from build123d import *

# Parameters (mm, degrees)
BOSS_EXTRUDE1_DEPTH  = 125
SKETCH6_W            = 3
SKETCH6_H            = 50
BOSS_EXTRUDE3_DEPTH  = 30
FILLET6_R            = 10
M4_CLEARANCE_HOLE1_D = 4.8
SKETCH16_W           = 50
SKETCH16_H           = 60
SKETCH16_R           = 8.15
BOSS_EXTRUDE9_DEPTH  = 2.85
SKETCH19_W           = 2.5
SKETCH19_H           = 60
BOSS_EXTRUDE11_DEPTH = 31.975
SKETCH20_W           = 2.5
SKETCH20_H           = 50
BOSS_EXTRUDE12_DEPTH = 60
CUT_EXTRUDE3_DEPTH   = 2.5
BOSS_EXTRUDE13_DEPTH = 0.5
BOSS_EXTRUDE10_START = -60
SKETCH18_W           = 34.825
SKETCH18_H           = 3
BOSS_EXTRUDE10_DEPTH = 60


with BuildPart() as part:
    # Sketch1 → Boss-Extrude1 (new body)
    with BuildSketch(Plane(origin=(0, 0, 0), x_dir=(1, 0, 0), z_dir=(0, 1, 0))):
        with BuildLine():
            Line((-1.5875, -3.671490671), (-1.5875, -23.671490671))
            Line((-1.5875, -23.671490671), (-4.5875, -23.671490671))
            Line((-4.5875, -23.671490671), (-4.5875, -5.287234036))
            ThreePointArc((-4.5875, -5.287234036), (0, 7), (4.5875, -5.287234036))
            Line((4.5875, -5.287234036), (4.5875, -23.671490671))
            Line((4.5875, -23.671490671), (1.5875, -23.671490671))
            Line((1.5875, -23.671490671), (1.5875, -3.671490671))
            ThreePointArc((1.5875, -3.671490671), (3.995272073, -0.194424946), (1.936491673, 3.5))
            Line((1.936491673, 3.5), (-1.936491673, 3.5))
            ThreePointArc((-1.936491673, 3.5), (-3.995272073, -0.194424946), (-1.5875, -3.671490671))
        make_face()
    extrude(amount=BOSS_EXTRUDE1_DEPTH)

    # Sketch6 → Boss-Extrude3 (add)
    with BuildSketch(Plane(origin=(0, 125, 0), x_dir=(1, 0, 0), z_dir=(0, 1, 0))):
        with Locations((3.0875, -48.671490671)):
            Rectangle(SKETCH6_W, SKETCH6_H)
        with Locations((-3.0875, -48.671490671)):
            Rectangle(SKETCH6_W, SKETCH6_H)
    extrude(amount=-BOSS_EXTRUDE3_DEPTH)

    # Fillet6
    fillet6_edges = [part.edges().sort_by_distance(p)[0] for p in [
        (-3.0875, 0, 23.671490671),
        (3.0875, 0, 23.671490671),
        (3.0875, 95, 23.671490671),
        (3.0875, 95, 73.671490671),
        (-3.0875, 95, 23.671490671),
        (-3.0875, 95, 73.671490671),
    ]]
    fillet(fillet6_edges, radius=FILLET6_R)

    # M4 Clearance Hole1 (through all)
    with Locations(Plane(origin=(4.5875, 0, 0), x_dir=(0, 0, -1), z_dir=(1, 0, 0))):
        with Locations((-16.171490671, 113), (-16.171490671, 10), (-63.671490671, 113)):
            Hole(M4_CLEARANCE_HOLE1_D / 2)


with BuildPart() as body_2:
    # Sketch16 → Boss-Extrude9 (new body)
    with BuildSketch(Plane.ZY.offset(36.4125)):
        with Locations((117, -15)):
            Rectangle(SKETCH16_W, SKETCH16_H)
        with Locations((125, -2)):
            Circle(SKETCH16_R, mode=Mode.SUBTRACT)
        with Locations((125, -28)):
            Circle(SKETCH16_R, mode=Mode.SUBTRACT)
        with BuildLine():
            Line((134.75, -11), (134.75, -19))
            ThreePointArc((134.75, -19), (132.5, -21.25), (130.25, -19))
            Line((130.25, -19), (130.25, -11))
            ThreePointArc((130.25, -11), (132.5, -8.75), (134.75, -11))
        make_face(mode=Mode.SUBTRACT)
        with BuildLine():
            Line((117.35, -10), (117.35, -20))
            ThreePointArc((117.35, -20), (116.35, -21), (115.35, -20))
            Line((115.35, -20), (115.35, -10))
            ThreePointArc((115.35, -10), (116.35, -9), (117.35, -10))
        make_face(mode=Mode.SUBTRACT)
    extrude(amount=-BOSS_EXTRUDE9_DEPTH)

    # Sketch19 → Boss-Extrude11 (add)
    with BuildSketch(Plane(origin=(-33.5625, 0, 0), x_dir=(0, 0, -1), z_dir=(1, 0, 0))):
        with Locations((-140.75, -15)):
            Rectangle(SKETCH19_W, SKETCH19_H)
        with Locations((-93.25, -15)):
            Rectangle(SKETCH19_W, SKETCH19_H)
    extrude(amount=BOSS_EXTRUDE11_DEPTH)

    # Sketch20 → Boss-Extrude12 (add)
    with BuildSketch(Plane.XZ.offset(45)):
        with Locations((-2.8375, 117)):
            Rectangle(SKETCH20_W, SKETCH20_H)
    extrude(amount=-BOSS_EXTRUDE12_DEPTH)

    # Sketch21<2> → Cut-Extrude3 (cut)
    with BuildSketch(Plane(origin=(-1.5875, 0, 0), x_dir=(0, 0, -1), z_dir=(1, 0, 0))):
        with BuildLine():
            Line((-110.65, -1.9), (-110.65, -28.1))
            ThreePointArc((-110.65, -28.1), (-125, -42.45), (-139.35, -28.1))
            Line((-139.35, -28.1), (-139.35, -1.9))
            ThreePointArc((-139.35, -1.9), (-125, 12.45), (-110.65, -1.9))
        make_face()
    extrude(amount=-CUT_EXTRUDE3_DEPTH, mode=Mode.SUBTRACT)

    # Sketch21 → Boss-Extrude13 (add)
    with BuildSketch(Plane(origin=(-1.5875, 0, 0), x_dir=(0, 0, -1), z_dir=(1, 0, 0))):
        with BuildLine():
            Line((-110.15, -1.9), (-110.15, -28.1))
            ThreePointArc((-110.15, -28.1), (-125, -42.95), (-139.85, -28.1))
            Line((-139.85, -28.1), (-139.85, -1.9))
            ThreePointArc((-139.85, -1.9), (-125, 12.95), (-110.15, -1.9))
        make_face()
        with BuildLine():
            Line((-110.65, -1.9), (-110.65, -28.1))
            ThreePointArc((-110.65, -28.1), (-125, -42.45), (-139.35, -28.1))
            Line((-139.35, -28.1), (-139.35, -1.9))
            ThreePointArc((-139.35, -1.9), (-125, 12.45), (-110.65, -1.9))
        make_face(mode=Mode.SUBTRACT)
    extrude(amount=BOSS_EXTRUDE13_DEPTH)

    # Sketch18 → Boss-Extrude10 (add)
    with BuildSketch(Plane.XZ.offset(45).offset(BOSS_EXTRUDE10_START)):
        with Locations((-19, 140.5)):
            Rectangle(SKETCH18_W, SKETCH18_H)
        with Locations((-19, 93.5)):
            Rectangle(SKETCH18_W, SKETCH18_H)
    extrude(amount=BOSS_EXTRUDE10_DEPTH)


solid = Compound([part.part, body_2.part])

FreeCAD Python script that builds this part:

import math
import FreeCAD as App
import Part
import Sketcher

V = App.Vector
Q = App.Units.Quantity


def edges_at(feature, points):
    """Names of the edges that pass closest to the given points."""
    edges = feature.Shape.Edges
    near = lambda p: min(range(len(edges)), key=lambda i: edges[i].distToShape(Part.Vertex(*p))[0])
    return sorted({f"Edge{near(p) + 1}" for p in points})


def add_polygon(sketch, points):
    """Adds a closed chain of lines whose ends are joined by coincident constraints."""
    first, n = sketch.GeometryCount, len(points)
    for a, b in zip(points, points[1:] + points[:1]):
        sketch.addGeometry(Part.LineSegment(App.Vector(*a, 0), App.Vector(*b, 0)), False)
    for i in range(n):
        sketch.addConstraint(Sketcher.Constraint("Coincident", first + i, 2, first + (i + 1) % n, 1))

doc = App.newDocument("Part")
params = doc.addObject("Spreadsheet::Sheet", "Params")
for row, (alias, value) in enumerate([
    ("sketch1_radius", "4 mm"),
    ("sketch1_radius2", "7 mm"),
    ("sketch1_width", "3 mm"),
    ("sketch1_height", "20 mm"),
    ("pad1_length", "125 mm"),
    ("sketch2_width", "3 mm"),
    ("sketch2_height", "50 mm"),
    ("pad2_length", "30 mm"),
    ("fillet_radius", "10 mm"),
    ("sketch3_diameter", "4.8 mm"),
    ("hole_diameter", "4.8 mm"),
    ("sketch4_radius", "1 mm"),
    ("sketch4_diameter", "16.3 mm"),
    ("sketch4_width", "60 mm"),
    ("sketch4_width2", "10 mm"),
    ("sketch4_width3", "8 mm"),
    ("pad3_length", "2.85 mm"),
    ("sketch5_width", "60 mm"),
    ("sketch5_height", "2.5 mm"),
    ("pad4_length", "31.975 mm"),
    ("sketch6_height", "50 mm"),
    ("sketch6_width", "2.5 mm"),
    ("pad5_length", "60 mm"),
    ("sketch7_radius", "14.35 mm"),
    ("sketch7_width", "26.2 mm"),
    ("pocket1_length", "2.5 mm"),
    ("sketch8_radius", "14.85 mm"),
    ("sketch8_radius2", "14.35 mm"),
    ("sketch8_width", "26.2 mm"),
    ("pad6_length", "0.5 mm"),
    ("sketch9_height", "3 mm"),
    ("pad7_length", "60 mm"),
], start=1):
    params.set(f"A{row}", alias)
    params.set(f"B{row}", "=" + value)
    params.setAlias(f"B{row}", alias)

body = doc.addObject("PartDesign::Body", "Body")

# Sketch on XZ plane
sketch1 = doc.addObject("Sketcher::SketchObject", "Sketch")
body.addObject(sketch1)
sketch1.AttachmentSupport = (doc.XZ_Plane, [""])
sketch1.MapMode = "FlatFace"
sketch1.addGeometry([
    Part.LineSegment(V(-1.6, 23.7, 0), V(-1.6, 3.7, 0)),  # 0
    Part.ArcOfCircle(Part.Circle(V(0, 0, 0), V(0, 0, 1), 4), math.radians(113), math.radians(241)),  # 1
    Part.LineSegment(V(-1.9, -3.5, 0), V(1.9, -3.5, 0)),  # 2
    Part.ArcOfCircle(Part.Circle(V(0, 0, 0), V(0, 0, 1), 4), math.radians(-61), math.radians(67)),  # 3
    Part.LineSegment(V(1.6, 3.7, 0), V(1.6, 23.7, 0)),  # 4
    Part.LineSegment(V(1.6, 23.7, 0), V(4.6, 23.7, 0)),  # 5
    Part.LineSegment(V(4.6, 23.7, 0), V(4.6, 5.3, 0)),  # 6
    Part.ArcOfCircle(Part.Circle(V(0, 0, 0), V(0, 0, 1), 7), math.radians(131), math.radians(409)),  # 7
    Part.LineSegment(V(-4.6, 5.3, 0), V(-4.6, 23.7, 0)),  # 8
    Part.LineSegment(V(-4.6, 23.7, 0), V(-1.6, 23.7, 0)),  # 9
], False)
sketch1.addConstraint([
    Sketcher.Constraint("Coincident", 0, 2, 1, 1),
    Sketcher.Constraint("Coincident", 1, 2, 2, 1),
    Sketcher.Constraint("Coincident", 2, 2, 3, 1),
    Sketcher.Constraint("Coincident", 3, 2, 4, 1),
    Sketcher.Constraint("Coincident", 4, 2, 5, 1),
    Sketcher.Constraint("Coincident", 5, 2, 6, 1),
    Sketcher.Constraint("Coincident", 6, 2, 7, 2),
    Sketcher.Constraint("Coincident", 7, 1, 8, 1),
    Sketcher.Constraint("Coincident", 8, 2, 9, 1),
    Sketcher.Constraint("Coincident", 9, 2, 0, 1),
    Sketcher.Constraint("Vertical", 0),
    Sketcher.Constraint("Horizontal", 2),
    Sketcher.Constraint("Vertical", 4),
    Sketcher.Constraint("Horizontal", 5),
    Sketcher.Constraint("Vertical", 6),
    Sketcher.Constraint("Vertical", 8),
    Sketcher.Constraint("Horizontal", 9),
    Sketcher.Constraint("Coincident", 1, 3, -1, 1),
    Sketcher.Constraint("Coincident", 3, 3, -1, 1),
    Sketcher.Constraint("Coincident", 7, 3, -1, 1),
    Sketcher.Constraint("Equal", 1, 3),
    Sketcher.Constraint("Symmetric", 5, 2, 8, 2, -2),
    Sketcher.Constraint("Horizontal", 0, 2, 3, 2),
    Sketcher.Constraint("Radius", 1, Q("4 mm")),
    Sketcher.Constraint("Radius", 7, Q("7 mm")),
    Sketcher.Constraint("DistanceX", 5, 1, 5, 2, Q("3 mm")),
    Sketcher.Constraint("DistanceY", 0, 2, 0, 1, Q("20 mm")),
    Sketcher.Constraint("DistanceY", 1, 2, -1, 1, Q("3.5 mm")),
    Sketcher.Constraint("DistanceX", 0, 2, 3, 2, Q("3.175 mm")),
])
sketch1.setExpression("Constraints[23]", "Params.sketch1_radius")
sketch1.setExpression("Constraints[24]", "Params.sketch1_radius2")
sketch1.setExpression("Constraints[25]", "Params.sketch1_width")
sketch1.setExpression("Constraints[26]", "Params.sketch1_height")
pad1 = doc.addObject("PartDesign::Pad", "Pad")
body.addObject(pad1)
pad1.Profile = sketch1
pad1.setExpression("Length", "Params.pad1_length")
pad1.Reversed = True

# Sketch on XZ plane
sketch2 = doc.addObject("Sketcher::SketchObject", "Sketch001")
body.addObject(sketch2)
sketch2.AttachmentSupport = (doc.XZ_Plane, [""])
sketch2.MapMode = "FlatFace"
sketch2.AttachmentOffset = App.Placement(V(0, 0, -125), App.Rotation())
add_polygon(sketch2, [(1.6, 23.7), (1.6, 73.7), (4.6, 73.7), (4.6, 23.7)])  # lines 0-3
add_polygon(sketch2, [(-4.6, 23.7), (-4.6, 73.7), (-1.6, 73.7), (-1.6, 23.7)])  # lines 4-7
sketch2.addConstraint([
    Sketcher.Constraint("Vertical", 0),
    Sketcher.Constraint("Horizontal", 1),
    Sketcher.Constraint("Vertical", 2),
    Sketcher.Constraint("Horizontal", 3),
    Sketcher.Constraint("Vertical", 4),
    Sketcher.Constraint("Horizontal", 5),
    Sketcher.Constraint("Vertical", 6),
    Sketcher.Constraint("Horizontal", 7),
    Sketcher.Constraint("Symmetric", 1, 2, 4, 2, -2),
    Sketcher.Constraint("Symmetric", 3, 2, 6, 2, -2),
    Sketcher.Constraint("DistanceX", 1, 1, 1, 2, Q("3 mm")),
    Sketcher.Constraint("DistanceY", 0, 1, 0, 2, Q("50 mm")),
    Sketcher.Constraint("DistanceX", 4, 2, 0, 2, Q("6.175 mm")),
    Sketcher.Constraint("DistanceY", -1, 1, 0, 2, Q("73.671491 mm")),
])
sketch2.setExpression("Constraints[18]", "Params.sketch2_width")
sketch2.setExpression("Constraints[19]", "Params.sketch2_height")
pad2 = doc.addObject("PartDesign::Pad", "Pad001")
body.addObject(pad2)
pad2.Profile = sketch2
pad2.setExpression("Length", "Params.pad2_length")
doc.recompute()

fillet = doc.addObject("PartDesign::Fillet", "Fillet")
body.addObject(fillet)
fillet.Base = (pad2, edges_at(pad2, [
    (-3.087, 0, 23.671),
    (3.087, 0, 23.671),
    (3.087, 95, 23.671),
    (3.087, 95, 73.671),
    (-3.087, 95, 23.671),
    (-3.087, 95, 73.671),
]))
fillet.setExpression("Radius", "Params.fillet_radius")

# Sketch on YZ plane
sketch3 = doc.addObject("Sketcher::SketchObject", "Sketch002")
body.addObject(sketch3)
sketch3.AttachmentSupport = (doc.YZ_Plane, [""])
sketch3.MapMode = "FlatFace"
sketch3.AttachmentOffset = App.Placement(V(0, 0, 4.5875), App.Rotation())
sketch3.addGeometry([
    Part.Circle(V(113, 16.2, 0), V(0, 0, 1), 2.4),
    Part.Circle(V(10, 16.2, 0), V(0, 0, 1), 2.4),
    Part.Circle(V(113, 63.7, 0), V(0, 0, 1), 2.4),
], False)
sketch3.addConstraint([
    Sketcher.Constraint("Equal", 0, 1),
    Sketcher.Constraint("Equal", 1, 2),
    Sketcher.Constraint("Horizontal", 0, 3, 1, 3),
    Sketcher.Constraint("Vertical", 0, 3, 2, 3),
    Sketcher.Constraint("Diameter", 0, Q("4.8 mm")),
    Sketcher.Constraint("DistanceX", -1, 1, 0, 3, Q("113 mm")),
    Sketcher.Constraint("DistanceX", -1, 1, 1, 3, Q("10 mm")),
    Sketcher.Constraint("DistanceY", 0, 3, 2, 3, Q("47.5 mm")),
    Sketcher.Constraint("DistanceY", -1, 1, 0, 3, Q("16.171491 mm")),
])
sketch3.setExpression("Constraints[4]", "Params.sketch3_diameter")
doc.recompute()
hole = doc.addObject("PartDesign::Hole", "Hole")
body.addObject(hole)
hole.Profile = sketch3
hole.ThreadType = "None"
hole.setExpression("Diameter", "Params.hole_diameter")
hole.DepthType = "ThroughAll"
body2 = doc.addObject("PartDesign::Body", "Body001")

# Sketch on YZ plane
sketch4 = doc.addObject("Sketcher::SketchObject", "Sketch003")
body2.addObject(sketch4)
sketch4.AttachmentSupport = (doc.getObject("YZ_Plane001"), [""])
sketch4.MapMode = "FlatFace"
sketch4.AttachmentOffset = App.Placement(V(0, 0, -36.4125), App.Rotation())
add_polygon(sketch4, [(15, 92), (-45, 92), (-45, 142), (15, 142)])  # lines 0-3
sketch4.addGeometry(Part.Circle(V(-28, 125, 0), V(0, 0, 1), 8.2), False)  # 4
sketch4.addGeometry(Part.ArcOfCircle(Part.Circle(V(-10, 116.3, 0), V(0, 0, 1), 1), math.radians(-90), math.radians(90)), False)  # 5
sketch4.addGeometry(Part.LineSegment(V(-10, 117.3, 0), V(-20, 117.3, 0)), False)  # 6
sketch4.addGeometry(Part.ArcOfCircle(Part.Circle(V(-20, 116.3, 0), V(0, 0, 1), 1), math.radians(90), math.radians(270)), False)  # 7
sketch4.addGeometry(Part.LineSegment(V(-20, 115.3, 0), V(-10, 115.3, 0)), False)  # 8
sketch4.addGeometry(Part.Circle(V(-2, 125, 0), V(0, 0, 1), 8.2), False)  # 9
sketch4.addGeometry(Part.ArcOfCircle(Part.Circle(V(-11, 132.5, 0), V(0, 0, 1), 2.2), math.radians(-90), math.radians(90)), False)  # 10
sketch4.addGeometry(Part.LineSegment(V(-11, 134.8, 0), V(-19, 134.8, 0)), False)  # 11
sketch4.addGeometry(Part.ArcOfCircle(Part.Circle(V(-19, 132.5, 0), V(0, 0, 1), 2.2), math.radians(90), math.radians(270)), False)  # 12
sketch4.addGeometry(Part.LineSegment(V(-19, 130.2, 0), V(-11, 130.2, 0)), False)  # 13
sketch4.addConstraint([
    Sketcher.Constraint("Tangent", 5, 2, 6, 1),
    Sketcher.Constraint("Tangent", 6, 2, 7, 1),
    Sketcher.Constraint("Tangent", 7, 2, 8, 1),
    Sketcher.Constraint("Tangent", 8, 2, 5, 1),
    Sketcher.Constraint("Tangent", 10, 2, 11, 1),
    Sketcher.Constraint("Tangent", 11, 2, 12, 1),
    Sketcher.Constraint("Tangent", 12, 2, 13, 1),
    Sketcher.Constraint("Tangent", 13, 2, 10, 1),
    Sketcher.Constraint("Horizontal", 0),
    Sketcher.Constraint("Vertical", 1),
    Sketcher.Constraint("Horizontal", 2),
    Sketcher.Constraint("Vertical", 3),
    Sketcher.Constraint("Horizontal", 6),
    Sketcher.Constraint("Horizontal", 8),
    Sketcher.Constraint("Horizontal", 11),
    Sketcher.Constraint("Horizontal", 13),
    Sketcher.Constraint("Equal", 4, 9),
    Sketcher.Constraint("Horizontal", 4, 3, 9, 3),
    Sketcher.Constraint("Radius", 5, Q("1 mm")),
    Sketcher.Constraint("Diameter", 4, Q("16.3 mm")),
    Sketcher.Constraint("DistanceX", 0, 2, 0, 1, Q("60 mm")),
    Sketcher.Constraint("DistanceX", 6, 2, 6, 1, Q("10 mm")),
    Sketcher.Constraint("DistanceX", 11, 2, 11, 1, Q("8 mm")),
    Sketcher.Constraint("DistanceY", 1, 1, 1, 2, Q("50 mm")),
    Sketcher.Constraint("Radius", 10, Q("2.25 mm")),
    Sketcher.Constraint("DistanceX", 4, 3, -1, 1, Q("28 mm")),
    Sketcher.Constraint("DistanceY", -1, 1, 4, 3, Q("125 mm")),
    Sketcher.Constraint("DistanceX", 5, 3, -1, 1, Q("10 mm")),
    Sketcher.Constraint("DistanceX", 9, 3, -1, 1, Q("2 mm")),
    Sketcher.Constraint("DistanceX", 10, 3, -1, 1, Q("11 mm")),
    Sketcher.Constraint("DistanceX", 0, 2, -1, 1, Q("45 mm")),
    Sketcher.Constraint("DistanceY", -1, 1, 0, 2, Q("92 mm")),
    Sketcher.Constraint("DistanceY", -1, 1, 10, 3, Q("132.5 mm")),
    Sketcher.Constraint("DistanceY", 5, 2, 10, 2, Q("17.4 mm")),
])
sketch4.setExpression("Constraints[22]", "Params.sketch4_radius")
sketch4.setExpression("Constraints[23]", "Params.sketch4_diameter")
sketch4.setExpression("Constraints[24]", "Params.sketch4_width")
sketch4.setExpression("Constraints[25]", "Params.sketch4_width2")
sketch4.setExpression("Constraints[26]", "Params.sketch4_width3")
pad3 = doc.addObject("PartDesign::Pad", "Pad002")
body2.addObject(pad3)
pad3.Profile = sketch4
pad3.setExpression("Length", "Params.pad3_length")

# Sketch on YZ plane
sketch5 = doc.addObject("Sketcher::SketchObject", "Sketch004")
body2.addObject(sketch5)
sketch5.AttachmentSupport = (doc.getObject("YZ_Plane001"), [""])
sketch5.MapMode = "FlatFace"
sketch5.AttachmentOffset = App.Placement(V(0, 0, -33.5625), App.Rotation())
add_polygon(sketch5, [(15, 142), (-45, 142), (-45, 139.5), (15, 139.5)])  # lines 0-3
add_polygon(sketch5, [(15, 94.5), (-45, 94.5), (-45, 92), (15, 92)])  # lines 4-7
sketch5.addConstraint([
    Sketcher.Constraint("Horizontal", 0),
    Sketcher.Constraint("Vertical", 1),
    Sketcher.Constraint("Horizontal", 2),
    Sketcher.Constraint("Vertical", 3),
    Sketcher.Constraint("Horizontal", 4),
    Sketcher.Constraint("Vertical", 5),
    Sketcher.Constraint("Horizontal", 6),
    Sketcher.Constraint("Vertical", 7),
    Sketcher.Constraint("Vertical", 1, 2, 4, 2),
    Sketcher.Constraint("Vertical", 3, 2, 6, 2),
    Sketcher.Constraint("Equal", 3, 5),
    Sketcher.Constraint("DistanceX", 0, 2, 0, 1, Q("60 mm")),
    Sketcher.Constraint("DistanceY", 1, 2, 1, 1, Q("2.5 mm")),
    Sketcher.Constraint("DistanceX", 0, 2, -1, 1, Q("45 mm")),
    Sketcher.Constraint("DistanceY", -1, 1, 0, 2, Q("142 mm")),
    Sketcher.Constraint("DistanceY", -1, 1, 5, 2, Q("92 mm")),
])
sketch5.setExpression("Constraints[19]", "Params.sketch5_width")
sketch5.setExpression("Constraints[20]", "Params.sketch5_height")
pad4 = doc.addObject("PartDesign::Pad", "Pad003")
body2.addObject(pad4)
pad4.Profile = sketch5
pad4.setExpression("Length", "Params.pad4_length")

# Sketch on XZ plane
sketch6 = doc.addObject("Sketcher::SketchObject", "Sketch005")
body2.addObject(sketch6)
sketch6.AttachmentSupport = (doc.getObject("XZ_Plane001"), [""])
sketch6.MapMode = "FlatFace"
sketch6.AttachmentOffset = App.Placement(V(0, 0, 45), App.Rotation())
add_polygon(sketch6, [(-4.1, 142), (-4.1, 92), (-1.6, 92), (-1.6, 142)])  # lines 0-3
sketch6.addConstraint([
    Sketcher.Constraint("Vertical", 0),
    Sketcher.Constraint("Horizontal", 1),
    Sketcher.Constraint("Vertical", 2),
    Sketcher.Constraint("Horizontal", 3),
    Sketcher.Constraint("DistanceY", 0, 2, 0, 1, Q("50 mm")),
    Sketcher.Constraint("DistanceX", 1, 1, 1, 2, Q("2.5 mm")),
    Sketcher.Constraint("DistanceY", -1, 1, 0, 2, Q("92 mm")),
    Sketcher.Constraint("DistanceX", 0, 2, -1, 1, Q("4.0875 mm")),
])
sketch6.setExpression("Constraints[8]", "Params.sketch6_height")
sketch6.setExpression("Constraints[9]", "Params.sketch6_width")
pad5 = doc.addObject("PartDesign::Pad", "Pad004")
body2.addObject(pad5)
pad5.Profile = sketch6
pad5.setExpression("Length", "Params.pad5_length")
pad5.Reversed = True

# Sketch on YZ plane
sketch7 = doc.addObject("Sketcher::SketchObject", "Sketch006")
body2.addObject(sketch7)
sketch7.AttachmentSupport = (doc.getObject("YZ_Plane001"), [""])
sketch7.MapMode = "FlatFace"
sketch7.AttachmentOffset = App.Placement(V(0, 0, -1.5875), App.Rotation())
sketch7.addGeometry([
    Part.LineSegment(V(-28, 111, 0), V(-2, 111, 0)),
    Part.ArcOfCircle(Part.Circle(V(-2, 125, 0), V(0, 0, 1), 14), math.radians(-90), math.radians(90)),
    Part.LineSegment(V(-2, 139, 0), V(-28, 139, 0)),
    Part.ArcOfCircle(Part.Circle(V(-28, 125, 0), V(0, 0, 1), 14), math.radians(90), math.radians(270)),
], False)
sketch7.addConstraint([
    Sketcher.Constraint("Tangent", 0, 2, 1, 1),
    Sketcher.Constraint("Tangent", 1, 2, 2, 1),
    Sketcher.Constraint("Tangent", 2, 2, 3, 1),
    Sketcher.Constraint("Tangent", 3, 2, 0, 1),
    Sketcher.Constraint("Horizontal", 0),
    Sketcher.Constraint("Horizontal", 2),
    Sketcher.Constraint("Radius", 1, Q("14.35 mm")),
    Sketcher.Constraint("DistanceX", 0, 1, 0, 2, Q("26.2 mm")),
    Sketcher.Constraint("DistanceY", -1, 1, 1, 3, Q("125 mm")),
    Sketcher.Constraint("DistanceX", 1, 3, -1, 1, Q("1.9 mm")),
])
sketch7.setExpression("Constraints[6]", "Params.sketch7_radius")
sketch7.setExpression("Constraints[7]", "Params.sketch7_width")
pocket1 = doc.addObject("PartDesign::Pocket", "Pocket")
body2.addObject(pocket1)
pocket1.Profile = sketch7
pocket1.setExpression("Length", "Params.pocket1_length")

# Sketch on YZ plane
sketch8 = doc.addObject("Sketcher::SketchObject", "Sketch007")
body2.addObject(sketch8)
sketch8.AttachmentSupport = (doc.getObject("YZ_Plane001"), [""])
sketch8.MapMode = "FlatFace"
sketch8.AttachmentOffset = App.Placement(V(0, 0, -1.5875), App.Rotation())
sketch8.addGeometry([
    Part.LineSegment(V(-28, 110, 0), V(-2, 110, 0)),  # 0
    Part.ArcOfCircle(Part.Circle(V(-2, 125, 0), V(0, 0, 1), 15), math.radians(-90), math.radians(90)),  # 1
    Part.LineSegment(V(-2, 140, 0), V(-28, 140, 0)),  # 2
    Part.ArcOfCircle(Part.Circle(V(-28, 125, 0), V(0, 0, 1), 15), math.radians(90), math.radians(270)),  # 3
    Part.LineSegment(V(-2, 111, 0), V(-28, 111, 0)),  # 4
    Part.ArcOfCircle(Part.Circle(V(-28, 125, 0), V(0, 0, 1), 14), math.radians(90), math.radians(270)),  # 5
    Part.LineSegment(V(-28, 139, 0), V(-2, 139, 0)),  # 6
    Part.ArcOfCircle(Part.Circle(V(-2, 125, 0), V(0, 0, 1), 14), math.radians(-90), math.radians(90)),  # 7
], False)
sketch8.addConstraint([
    Sketcher.Constraint("Tangent", 0, 2, 1, 1),
    Sketcher.Constraint("Tangent", 1, 2, 2, 1),
    Sketcher.Constraint("Tangent", 2, 2, 3, 1),
    Sketcher.Constraint("Tangent", 3, 2, 0, 1),
    Sketcher.Constraint("Tangent", 4, 2, 5, 2),
    Sketcher.Constraint("Tangent", 5, 1, 6, 1),
    Sketcher.Constraint("Tangent", 6, 2, 7, 2),
    Sketcher.Constraint("Tangent", 7, 1, 4, 1),
    Sketcher.Constraint("Horizontal", 0),
    Sketcher.Constraint("Horizontal", 2),
    Sketcher.Constraint("Horizontal", 4),
    Sketcher.Constraint("Horizontal", 6),
    Sketcher.Constraint("Coincident", 5, 3, 3, 3),
    Sketcher.Constraint("Vertical", 7, 3, 0, 2),
    Sketcher.Constraint("Radius", 1, Q("14.85 mm")),
    Sketcher.Constraint("Radius", 5, Q("14.35 mm")),
    Sketcher.Constraint("DistanceX", 0, 1, 0, 2, Q("26.2 mm")),
    Sketcher.Constraint("DistanceY", -1, 1, 1, 3, Q("125 mm")),
    Sketcher.Constraint("DistanceX", 1, 3, -1, 1, Q("1.9 mm")),
])
sketch8.setExpression("Constraints[14]", "Params.sketch8_radius")
sketch8.setExpression("Constraints[15]", "Params.sketch8_radius2")
sketch8.setExpression("Constraints[16]", "Params.sketch8_width")
pad6 = doc.addObject("PartDesign::Pad", "Pad005")
body2.addObject(pad6)
pad6.Profile = sketch8
pad6.setExpression("Length", "Params.pad6_length")

# Sketch on XZ plane
sketch9 = doc.addObject("Sketcher::SketchObject", "Sketch008")
body2.addObject(sketch9)
sketch9.AttachmentSupport = (doc.getObject("XZ_Plane001"), [""])
sketch9.MapMode = "FlatFace"
sketch9.AttachmentOffset = App.Placement(V(0, 0, -15), App.Rotation())
add_polygon(sketch9, [(-36.4, 142), (-36.4, 139), (-1.6, 139), (-1.6, 142)])  # lines 0-3
add_polygon(sketch9, [(-36.4, 95), (-36.4, 92), (-1.6, 92), (-1.6, 95)])  # lines 4-7
sketch9.addConstraint([
    Sketcher.Constraint("Vertical", 0),
    Sketcher.Constraint("Horizontal", 1),
    Sketcher.Constraint("Vertical", 2),
    Sketcher.Constraint("Horizontal", 3),
    Sketcher.Constraint("Vertical", 4),
    Sketcher.Constraint("Horizontal", 5),
    Sketcher.Constraint("Vertical", 6),
    Sketcher.Constraint("Horizontal", 7),
    Sketcher.Constraint("Vertical", 3, 2, 4, 2),
    Sketcher.Constraint("Vertical", 2, 2, 5, 2),
    Sketcher.Constraint("Equal", 2, 4),
    Sketcher.Constraint("DistanceY", 0, 2, 0, 1, Q("3 mm")),
    Sketcher.Constraint("DistanceY", -1, 1, 0, 2, Q("139 mm")),
    Sketcher.Constraint("DistanceY", -1, 1, 4, 2, Q("92 mm")),
    Sketcher.Constraint("DistanceX", 1, 1, 1, 2, Q("34.825 mm")),
    Sketcher.Constraint("DistanceX", 0, 2, -1, 1, Q("36.4125 mm")),
])
sketch9.setExpression("Constraints[19]", "Params.sketch9_height")
pad7 = doc.addObject("PartDesign::Pad", "Pad006")
body2.addObject(pad7)
pad7.Profile = sketch9
pad7.setExpression("Length", "Params.pad7_length")

doc.recompute()
